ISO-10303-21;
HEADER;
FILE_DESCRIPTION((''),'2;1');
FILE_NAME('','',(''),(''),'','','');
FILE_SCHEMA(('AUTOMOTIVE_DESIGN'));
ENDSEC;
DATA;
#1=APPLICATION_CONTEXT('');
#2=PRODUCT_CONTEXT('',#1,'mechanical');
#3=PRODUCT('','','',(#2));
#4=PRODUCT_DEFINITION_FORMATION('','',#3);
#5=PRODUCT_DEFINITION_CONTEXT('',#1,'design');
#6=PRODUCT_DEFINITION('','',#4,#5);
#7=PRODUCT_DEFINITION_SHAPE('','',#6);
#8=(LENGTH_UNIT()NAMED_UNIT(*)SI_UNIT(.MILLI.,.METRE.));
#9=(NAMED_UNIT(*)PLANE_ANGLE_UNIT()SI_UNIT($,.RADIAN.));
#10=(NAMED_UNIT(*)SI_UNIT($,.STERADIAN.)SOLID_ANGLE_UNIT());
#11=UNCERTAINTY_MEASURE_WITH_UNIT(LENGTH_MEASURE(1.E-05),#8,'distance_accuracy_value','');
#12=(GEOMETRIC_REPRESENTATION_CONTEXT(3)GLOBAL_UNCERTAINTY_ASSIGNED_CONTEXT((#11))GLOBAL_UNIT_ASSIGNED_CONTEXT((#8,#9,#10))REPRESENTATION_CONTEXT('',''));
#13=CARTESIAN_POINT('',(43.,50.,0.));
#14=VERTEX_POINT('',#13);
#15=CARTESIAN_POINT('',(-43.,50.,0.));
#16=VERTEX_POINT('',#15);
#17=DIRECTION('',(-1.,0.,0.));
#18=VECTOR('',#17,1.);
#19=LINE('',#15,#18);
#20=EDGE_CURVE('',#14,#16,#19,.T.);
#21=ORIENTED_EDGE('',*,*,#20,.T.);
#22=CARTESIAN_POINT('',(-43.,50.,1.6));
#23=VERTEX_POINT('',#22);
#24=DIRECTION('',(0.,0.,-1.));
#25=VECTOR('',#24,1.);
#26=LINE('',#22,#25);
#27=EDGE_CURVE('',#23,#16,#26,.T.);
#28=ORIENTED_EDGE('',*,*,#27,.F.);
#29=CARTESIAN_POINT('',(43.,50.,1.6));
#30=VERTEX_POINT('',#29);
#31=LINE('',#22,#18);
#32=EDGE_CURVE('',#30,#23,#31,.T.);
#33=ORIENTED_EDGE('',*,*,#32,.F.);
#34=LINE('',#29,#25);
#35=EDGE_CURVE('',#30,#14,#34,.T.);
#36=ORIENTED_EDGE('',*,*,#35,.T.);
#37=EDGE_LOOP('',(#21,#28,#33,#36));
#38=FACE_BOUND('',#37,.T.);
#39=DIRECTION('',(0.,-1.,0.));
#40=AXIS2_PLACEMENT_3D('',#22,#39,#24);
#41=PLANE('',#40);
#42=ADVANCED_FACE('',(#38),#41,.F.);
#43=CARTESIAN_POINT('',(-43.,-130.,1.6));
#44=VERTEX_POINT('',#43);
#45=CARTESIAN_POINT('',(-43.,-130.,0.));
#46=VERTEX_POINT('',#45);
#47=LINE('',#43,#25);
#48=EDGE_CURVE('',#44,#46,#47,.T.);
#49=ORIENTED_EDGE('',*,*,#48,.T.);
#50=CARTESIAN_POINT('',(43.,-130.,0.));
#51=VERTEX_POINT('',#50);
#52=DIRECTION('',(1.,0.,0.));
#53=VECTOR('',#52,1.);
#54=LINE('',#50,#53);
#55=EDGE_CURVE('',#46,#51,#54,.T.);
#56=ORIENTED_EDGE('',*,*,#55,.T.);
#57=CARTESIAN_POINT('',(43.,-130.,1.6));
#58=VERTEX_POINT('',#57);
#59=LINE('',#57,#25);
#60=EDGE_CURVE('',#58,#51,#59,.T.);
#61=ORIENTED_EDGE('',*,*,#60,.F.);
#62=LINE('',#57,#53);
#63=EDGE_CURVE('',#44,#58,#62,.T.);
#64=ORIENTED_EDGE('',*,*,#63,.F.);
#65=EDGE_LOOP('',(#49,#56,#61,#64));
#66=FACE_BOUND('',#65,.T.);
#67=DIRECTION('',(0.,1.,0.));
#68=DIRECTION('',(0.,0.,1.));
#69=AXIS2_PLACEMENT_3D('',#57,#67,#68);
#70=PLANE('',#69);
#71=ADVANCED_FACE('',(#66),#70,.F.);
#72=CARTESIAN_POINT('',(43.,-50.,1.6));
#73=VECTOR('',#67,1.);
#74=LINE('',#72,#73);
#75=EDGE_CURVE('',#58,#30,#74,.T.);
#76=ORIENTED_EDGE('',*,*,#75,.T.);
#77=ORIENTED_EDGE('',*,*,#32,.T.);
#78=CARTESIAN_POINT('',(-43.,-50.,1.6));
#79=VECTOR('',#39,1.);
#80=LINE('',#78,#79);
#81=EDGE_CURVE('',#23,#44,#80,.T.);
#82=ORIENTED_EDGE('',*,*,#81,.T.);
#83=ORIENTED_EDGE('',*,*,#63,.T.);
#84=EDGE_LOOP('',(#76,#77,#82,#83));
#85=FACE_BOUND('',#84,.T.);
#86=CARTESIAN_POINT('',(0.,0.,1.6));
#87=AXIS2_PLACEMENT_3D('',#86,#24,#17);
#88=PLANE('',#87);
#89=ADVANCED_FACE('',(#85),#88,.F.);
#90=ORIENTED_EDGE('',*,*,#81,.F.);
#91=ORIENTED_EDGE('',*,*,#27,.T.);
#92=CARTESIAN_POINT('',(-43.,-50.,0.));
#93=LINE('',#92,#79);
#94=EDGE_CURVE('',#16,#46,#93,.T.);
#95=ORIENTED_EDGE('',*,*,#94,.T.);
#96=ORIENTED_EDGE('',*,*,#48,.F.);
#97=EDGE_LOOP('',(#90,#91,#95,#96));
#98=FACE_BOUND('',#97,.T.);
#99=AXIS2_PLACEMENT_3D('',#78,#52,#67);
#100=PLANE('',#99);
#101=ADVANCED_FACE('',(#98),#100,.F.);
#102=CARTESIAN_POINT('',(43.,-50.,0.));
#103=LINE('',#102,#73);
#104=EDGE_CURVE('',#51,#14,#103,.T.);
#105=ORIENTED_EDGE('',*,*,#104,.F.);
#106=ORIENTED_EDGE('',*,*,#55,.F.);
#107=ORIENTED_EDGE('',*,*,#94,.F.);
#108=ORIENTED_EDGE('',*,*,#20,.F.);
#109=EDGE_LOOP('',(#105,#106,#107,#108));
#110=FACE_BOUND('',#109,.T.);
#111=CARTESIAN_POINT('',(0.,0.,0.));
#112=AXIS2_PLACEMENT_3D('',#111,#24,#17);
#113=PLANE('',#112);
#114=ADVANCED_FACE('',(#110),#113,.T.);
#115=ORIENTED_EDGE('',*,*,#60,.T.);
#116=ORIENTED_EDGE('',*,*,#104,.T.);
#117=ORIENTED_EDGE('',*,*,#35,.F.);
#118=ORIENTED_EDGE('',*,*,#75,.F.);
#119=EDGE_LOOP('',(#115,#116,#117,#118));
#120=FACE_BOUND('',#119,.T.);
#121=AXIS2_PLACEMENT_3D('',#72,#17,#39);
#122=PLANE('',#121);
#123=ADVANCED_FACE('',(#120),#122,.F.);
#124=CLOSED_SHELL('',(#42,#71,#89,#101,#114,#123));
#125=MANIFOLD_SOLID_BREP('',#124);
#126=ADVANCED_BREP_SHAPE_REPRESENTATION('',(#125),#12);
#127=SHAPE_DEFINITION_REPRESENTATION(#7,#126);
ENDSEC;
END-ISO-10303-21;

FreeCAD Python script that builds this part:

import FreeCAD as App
import Part
import Sketcher
from FreeCAD import Vector
Q = App.Units.Quantity

doc = App.newDocument("Part")
body = doc.addObject("PartDesign::Body", "Body")

# Sketch on XY plane
sketch1 = body.newObject("Sketcher::SketchObject", "Sketch")
sketch1.AttachmentSupport = (doc.getObject("XY_Plane"), [""])
sketch1.MapMode = "FlatFace"
sketch1.addGeometry(Part.LineSegment(Vector(-43, -130, 0), Vector(43, -130, 0)), False)
sketch1.addGeometry(Part.LineSegment(Vector(43, -130, 0), Vector(43, 50, 0)), False)
sketch1.addGeometry(Part.LineSegment(Vector(43, 50, 0), Vector(-43, 50, 0)), False)
sketch1.addGeometry(Part.LineSegment(Vector(-43, 50, 0), Vector(-43, -130, 0)), False)
sketch1.addConstraint(Sketcher.Constraint("Coincident", 0, 2, 1, 1))
sketch1.addConstraint(Sketcher.Constraint("Coincident", 1, 2, 2, 1))
sketch1.addConstraint(Sketcher.Constraint("Coincident", 2, 2, 3, 1))
sketch1.addConstraint(Sketcher.Constraint("Coincident", 3, 2, 0, 1))
sketch1.addConstraint(Sketcher.Constraint("Horizontal", 0))
sketch1.addConstraint(Sketcher.Constraint("Vertical", 1))
sketch1.addConstraint(Sketcher.Constraint("Horizontal", 2))
sketch1.addConstraint(Sketcher.Constraint("Vertical", 3))
sketch1.addConstraint(Sketcher.Constraint("DistanceX", 0, 1, 0, 2, Q("86 mm")))
sketch1.addConstraint(Sketcher.Constraint("DistanceY", 1, 1, 1, 2, Q("180 mm")))
sketch1.addConstraint(Sketcher.Constraint("DistanceX", -1, 1, 0, 2, Q("43 mm")))
sketch1.addConstraint(Sketcher.Constraint("DistanceY", 0, 2, -1, 1, Q("130 mm")))
pad1 = body.newObject("PartDesign::Pad", "Pad")
pad1.Profile = sketch1
pad1.Length = 1.6

doc.recompute()
